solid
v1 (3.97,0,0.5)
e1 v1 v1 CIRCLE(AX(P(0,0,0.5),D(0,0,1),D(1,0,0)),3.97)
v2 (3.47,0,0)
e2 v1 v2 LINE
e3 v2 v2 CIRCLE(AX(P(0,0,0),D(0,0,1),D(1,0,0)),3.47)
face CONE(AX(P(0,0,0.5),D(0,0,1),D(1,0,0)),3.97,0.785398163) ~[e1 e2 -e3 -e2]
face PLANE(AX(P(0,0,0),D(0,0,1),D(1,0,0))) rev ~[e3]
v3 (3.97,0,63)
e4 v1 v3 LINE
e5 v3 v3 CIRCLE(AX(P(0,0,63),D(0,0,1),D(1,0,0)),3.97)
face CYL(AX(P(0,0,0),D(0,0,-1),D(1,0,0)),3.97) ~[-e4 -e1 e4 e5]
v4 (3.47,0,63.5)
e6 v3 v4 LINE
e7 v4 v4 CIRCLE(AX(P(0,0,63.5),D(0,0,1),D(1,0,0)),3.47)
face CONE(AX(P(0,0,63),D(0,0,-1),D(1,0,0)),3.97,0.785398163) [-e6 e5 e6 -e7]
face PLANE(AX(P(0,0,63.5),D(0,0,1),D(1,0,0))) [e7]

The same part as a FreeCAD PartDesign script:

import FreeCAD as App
import Part
import Sketcher
from FreeCAD import Vector
Q = App.Units.Quantity


def edges_at(feature, points):
    """Names of the edges that pass closest to the given points."""
    edges = feature.Shape.Edges
    near = lambda p: min(range(len(edges)), key=lambda i: edges[i].distToShape(Part.Vertex(*p))[0])
    return sorted({f"Edge{near(p) + 1}" for p in points})

doc = App.newDocument("Part")
body = doc.addObject("PartDesign::Body", "Body")

sketch1 = body.newObject("Sketcher::SketchObject", "Sketch")
sketch1.AttachmentSupport = (doc.getObject("XY_Plane"), [""])
sketch1.MapMode = "FlatFace"
sketch1.addGeometry(Part.Circle(Vector(0, 0, 0), Vector(0, 0, 1), 4), False)
sketch1.addConstraint([
    Sketcher.Constraint("Coincident", 0, 3, -1, 1),
    Sketcher.Constraint("Diameter", 0, Q("7.94 mm")),
])
pad1 = body.newObject("PartDesign::Pad", "Pad")
pad1.Profile = sketch1
pad1.Length = 63.5
doc.recompute()

chamfer = body.newObject("PartDesign::Chamfer", "Chamfer")
chamfer.Base = (pad1, edges_at(pad1, [(-3.97, 0, 63.5), (-3.97, 0, 0)]))
chamfer.Size = 0.5

doc.recompute()
